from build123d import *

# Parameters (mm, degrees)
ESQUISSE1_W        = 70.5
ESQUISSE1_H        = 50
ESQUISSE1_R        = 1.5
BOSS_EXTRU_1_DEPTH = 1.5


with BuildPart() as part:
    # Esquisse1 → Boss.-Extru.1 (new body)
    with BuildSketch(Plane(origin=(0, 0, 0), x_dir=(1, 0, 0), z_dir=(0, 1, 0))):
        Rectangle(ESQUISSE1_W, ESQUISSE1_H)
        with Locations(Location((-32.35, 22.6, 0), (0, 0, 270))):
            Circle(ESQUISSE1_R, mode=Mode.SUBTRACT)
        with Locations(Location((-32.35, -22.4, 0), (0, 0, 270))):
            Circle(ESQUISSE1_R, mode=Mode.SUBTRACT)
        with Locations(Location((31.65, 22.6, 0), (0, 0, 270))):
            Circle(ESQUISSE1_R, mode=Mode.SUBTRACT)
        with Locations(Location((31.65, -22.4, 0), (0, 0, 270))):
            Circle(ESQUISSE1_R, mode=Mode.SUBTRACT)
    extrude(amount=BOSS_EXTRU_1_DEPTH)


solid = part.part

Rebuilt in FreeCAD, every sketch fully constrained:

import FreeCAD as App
import Part
import Sketcher
from FreeCAD import Vector

doc = App.newDocument("Part")
body = doc.addObject("PartDesign::Body", "Body")

sketch1 = body.newObject("Sketcher::SketchObject", "Sketch")
sketch1.AttachmentSupport = (doc.getObject("XZ_Plane"), [""])
sketch1.MapMode = "FlatFace"
sketch1.addGeometry([
    Part.LineSegment(Vector(-35.25, -25, 0), Vector(-35.25, 25, 0)),
    Part.LineSegment(Vector(-35.25, 25, 0), Vector(35.25, 25, 0)),
    Part.LineSegment(Vector(35.25, 25, 0), Vector(35.25, -25, 0)),
    Part.LineSegment(Vector(35.25, -25, 0), Vector(-35.25, -25, 0)),
    Part.Circle(Vector(-32.35, 22.4, 0), Vector(0, 0, 1), 1.5),
    Part.Circle(Vector(31.65, 22.4, 0), Vector(0, 0, 1), 1.5),
    Part.Circle(Vector(-32.35, -22.6, 0), Vector(0, 0, 1), 1.5),
    Part.Circle(Vector(31.65, -22.6, 0), Vector(0, 0, 1), 1.5),
], False)
sketch1.addConstraint([
    Sketcher.Constraint("Coincident", 0, 2, 1, 1),
    Sketcher.Constraint("Coincident", 1, 2, 2, 1),
    Sketcher.Constraint("Coincident", 2, 2, 3, 1),
    Sketcher.Constraint("Coincident", 3, 2, 0, 1),
    Sketcher.Constraint("Vertical", 0),
    Sketcher.Constraint("Horizontal", 1),
    Sketcher.Constraint("Vertical", 2),
    Sketcher.Constraint("Horizontal", 3),
    Sketcher.Constraint("Equal", 4, 5),
    Sketcher.Constraint("Equal", 5, 6),
    Sketcher.Constraint("Equal", 6, 7),
    Sketcher.Constraint("Symmetric", 0, 2, 2, 2, -1, 1),
    Sketcher.Constraint("Horizontal", 4, 3, 5, 3),
    Sketcher.Constraint("Horizontal", 6, 3, 7, 3),
    Sketcher.Constraint("Vertical", 4, 3, 6, 3),
    Sketcher.Constraint("Vertical", 5, 3, 7, 3),
    Sketcher.Constraint("Diameter", 4, 3.0),
    Sketcher.Constraint("DistanceY", 0, 1, 0, 2, 50.0),
    Sketcher.Constraint("DistanceX", 1, 1, 1, 2, 70.5),
    Sketcher.Constraint("DistanceX", 4, 3, 5, 3, 64.0),
    Sketcher.Constraint("DistanceY", 6, 3, 4, 3, 45.0),
    Sketcher.Constraint("DistanceY", -1, 1, 4, 3, 22.4),
    Sketcher.Constraint("DistanceX", 0, 2, 4, 3, 2.9),
])
pad1 = body.newObject("PartDesign::Pad", "Pad")
pad1.Profile = sketch1
pad1.Length = 1.5
pad1.Reversed = True

doc.recompute()
